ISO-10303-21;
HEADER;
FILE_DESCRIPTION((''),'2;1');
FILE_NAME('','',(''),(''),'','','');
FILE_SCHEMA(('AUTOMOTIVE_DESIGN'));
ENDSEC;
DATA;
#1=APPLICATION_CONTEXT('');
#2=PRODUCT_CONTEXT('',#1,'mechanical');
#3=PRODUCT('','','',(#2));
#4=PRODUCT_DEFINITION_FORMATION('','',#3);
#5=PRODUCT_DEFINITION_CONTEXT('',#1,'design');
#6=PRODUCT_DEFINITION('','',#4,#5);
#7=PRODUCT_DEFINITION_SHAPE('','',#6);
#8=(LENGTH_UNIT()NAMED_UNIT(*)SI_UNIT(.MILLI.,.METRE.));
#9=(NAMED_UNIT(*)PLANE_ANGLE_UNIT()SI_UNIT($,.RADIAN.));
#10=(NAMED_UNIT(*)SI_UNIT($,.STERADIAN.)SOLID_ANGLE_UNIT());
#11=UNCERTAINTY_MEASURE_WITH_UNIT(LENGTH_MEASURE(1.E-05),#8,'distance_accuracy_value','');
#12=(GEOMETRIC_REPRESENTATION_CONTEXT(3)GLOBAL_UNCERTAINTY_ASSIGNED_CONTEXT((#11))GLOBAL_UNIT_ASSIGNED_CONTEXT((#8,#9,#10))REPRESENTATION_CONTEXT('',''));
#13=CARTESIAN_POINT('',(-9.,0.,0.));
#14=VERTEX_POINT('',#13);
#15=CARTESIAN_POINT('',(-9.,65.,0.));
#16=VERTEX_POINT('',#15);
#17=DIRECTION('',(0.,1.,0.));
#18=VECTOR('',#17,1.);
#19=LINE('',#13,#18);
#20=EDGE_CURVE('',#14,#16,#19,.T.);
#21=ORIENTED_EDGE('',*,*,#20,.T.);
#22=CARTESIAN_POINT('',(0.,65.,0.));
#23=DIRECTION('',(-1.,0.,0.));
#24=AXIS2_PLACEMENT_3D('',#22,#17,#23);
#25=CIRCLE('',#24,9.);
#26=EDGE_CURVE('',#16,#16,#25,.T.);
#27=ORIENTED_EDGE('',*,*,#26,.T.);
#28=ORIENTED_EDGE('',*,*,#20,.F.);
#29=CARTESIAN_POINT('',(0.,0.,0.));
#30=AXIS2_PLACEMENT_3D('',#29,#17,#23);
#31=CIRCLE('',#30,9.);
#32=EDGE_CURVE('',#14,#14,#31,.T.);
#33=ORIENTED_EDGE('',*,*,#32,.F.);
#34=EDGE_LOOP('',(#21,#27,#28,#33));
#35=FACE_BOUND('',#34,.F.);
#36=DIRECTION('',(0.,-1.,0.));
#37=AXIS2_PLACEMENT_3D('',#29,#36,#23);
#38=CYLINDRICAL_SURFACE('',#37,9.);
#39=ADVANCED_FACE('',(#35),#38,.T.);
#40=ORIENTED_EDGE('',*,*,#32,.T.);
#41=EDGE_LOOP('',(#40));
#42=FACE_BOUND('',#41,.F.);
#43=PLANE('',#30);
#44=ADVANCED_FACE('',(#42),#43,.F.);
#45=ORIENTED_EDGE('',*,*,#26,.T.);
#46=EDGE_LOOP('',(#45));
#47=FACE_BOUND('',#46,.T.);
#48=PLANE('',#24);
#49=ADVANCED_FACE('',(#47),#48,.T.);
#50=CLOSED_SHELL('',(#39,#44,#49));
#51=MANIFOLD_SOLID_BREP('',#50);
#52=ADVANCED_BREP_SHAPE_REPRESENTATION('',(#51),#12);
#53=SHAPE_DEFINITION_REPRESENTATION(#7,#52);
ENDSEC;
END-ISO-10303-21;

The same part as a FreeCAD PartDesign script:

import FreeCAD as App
import Part
import Sketcher
from FreeCAD import Vector

doc = App.newDocument("Part")
body = doc.addObject("PartDesign::Body", "Body")

# Sketch on XZ plane
sketch1 = body.newObject("Sketcher::SketchObject", "Sketch")
sketch1.AttachmentSupport = (doc.getObject("XZ_Plane"), [""])
sketch1.MapMode = "FlatFace"
sketch1.addGeometry(Part.Circle(Vector(0, 0, 0), Vector(0, 0, 1), 9), False)
sketch1.addConstraint(Sketcher.Constraint("Coincident", 0, 3, -1, 1))
sketch1.addConstraint(Sketcher.Constraint("Diameter", 0, 18.0))
pad1 = body.newObject("PartDesign::Pad", "Pad")
pad1.Profile = sketch1
pad1.Length = 65
pad1.Reversed = True

doc.recompute()
